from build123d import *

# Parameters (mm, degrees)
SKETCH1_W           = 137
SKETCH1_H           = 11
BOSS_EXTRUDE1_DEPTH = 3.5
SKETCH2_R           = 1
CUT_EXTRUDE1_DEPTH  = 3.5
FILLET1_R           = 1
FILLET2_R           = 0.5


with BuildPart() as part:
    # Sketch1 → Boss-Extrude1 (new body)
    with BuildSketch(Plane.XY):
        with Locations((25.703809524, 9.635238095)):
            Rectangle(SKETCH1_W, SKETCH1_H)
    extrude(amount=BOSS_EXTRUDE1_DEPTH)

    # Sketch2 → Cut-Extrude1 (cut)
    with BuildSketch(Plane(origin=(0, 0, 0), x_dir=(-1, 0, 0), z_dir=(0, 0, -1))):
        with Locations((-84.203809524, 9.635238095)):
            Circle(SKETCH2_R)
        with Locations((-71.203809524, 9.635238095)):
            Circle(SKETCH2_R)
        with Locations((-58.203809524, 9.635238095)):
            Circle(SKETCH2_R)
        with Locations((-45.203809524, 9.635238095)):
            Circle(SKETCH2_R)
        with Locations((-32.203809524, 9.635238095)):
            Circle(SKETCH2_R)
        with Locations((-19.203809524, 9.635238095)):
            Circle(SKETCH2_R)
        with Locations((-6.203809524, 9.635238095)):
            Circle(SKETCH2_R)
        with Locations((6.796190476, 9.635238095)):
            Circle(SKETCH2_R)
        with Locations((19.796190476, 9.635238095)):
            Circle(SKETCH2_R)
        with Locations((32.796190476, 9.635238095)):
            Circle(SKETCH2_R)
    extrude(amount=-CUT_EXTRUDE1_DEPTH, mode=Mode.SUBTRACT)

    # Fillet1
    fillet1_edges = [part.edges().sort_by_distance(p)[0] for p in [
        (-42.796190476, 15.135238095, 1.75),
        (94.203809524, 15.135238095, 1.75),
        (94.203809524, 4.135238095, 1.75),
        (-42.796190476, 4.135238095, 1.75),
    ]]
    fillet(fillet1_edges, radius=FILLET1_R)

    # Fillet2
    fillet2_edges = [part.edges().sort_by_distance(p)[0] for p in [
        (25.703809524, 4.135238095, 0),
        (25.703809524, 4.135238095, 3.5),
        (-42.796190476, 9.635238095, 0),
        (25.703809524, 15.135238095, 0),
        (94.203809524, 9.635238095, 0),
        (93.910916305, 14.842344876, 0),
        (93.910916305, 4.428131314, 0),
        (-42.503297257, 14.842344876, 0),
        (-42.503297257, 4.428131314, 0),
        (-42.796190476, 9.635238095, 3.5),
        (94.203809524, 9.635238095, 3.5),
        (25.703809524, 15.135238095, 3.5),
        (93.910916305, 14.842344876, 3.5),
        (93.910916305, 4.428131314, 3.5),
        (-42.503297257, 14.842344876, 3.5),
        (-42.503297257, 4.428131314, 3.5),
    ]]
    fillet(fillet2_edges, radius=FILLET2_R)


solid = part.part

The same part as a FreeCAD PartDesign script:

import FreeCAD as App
import Part
import Sketcher

V = App.Vector
Q = App.Units.Quantity


def edges_at(feature, points):
    """Names of the edges that pass closest to the given points."""
    edges = feature.Shape.Edges
    near = lambda p: min(range(len(edges)), key=lambda i: edges[i].distToShape(Part.Vertex(*p))[0])
    return sorted({f"Edge{near(p) + 1}" for p in points})

doc = App.newDocument("Part")
body = doc.addObject("PartDesign::Body", "Body")

sketch1 = body.newObject("Sketcher::SketchObject", "Sketch")
sketch1.AttachmentSupport = (doc.getObject("XY_Plane"), [""])
sketch1.MapMode = "FlatFace"
sketch1.addGeometry([
    Part.LineSegment(V(-43, 15, 0), V(-43, 4, 0)),
    Part.LineSegment(V(-43, 4, 0), V(94, 4, 0)),
    Part.LineSegment(V(94, 4, 0), V(94, 15, 0)),
    Part.LineSegment(V(94, 15, 0), V(-43, 15, 0)),
], False)
sketch1.addConstraint([
    Sketcher.Constraint("Coincident", 0, 2, 1, 1),
    Sketcher.Constraint("Coincident", 1, 2, 2, 1),
    Sketcher.Constraint("Coincident", 2, 2, 3, 1),
    Sketcher.Constraint("Coincident", 3, 2, 0, 1),
    Sketcher.Constraint("Vertical", 0),
    Sketcher.Constraint("Horizontal", 1),
    Sketcher.Constraint("Vertical", 2),
    Sketcher.Constraint("Horizontal", 3),
    Sketcher.Constraint("DistanceX", 1, 1, 1, 2, Q("137 mm")),
    Sketcher.Constraint("DistanceY", 0, 2, 0, 1, Q("11 mm")),
    Sketcher.Constraint("DistanceX", 0, 2, -1, 1, Q("42.79619 mm")),
    Sketcher.Constraint("DistanceY", -1, 1, 0, 2, Q("4.135238 mm")),
])
pad1 = body.newObject("PartDesign::Pad", "Pad")
pad1.Profile = sketch1
pad1.Length = 3.5

sketch2 = body.newObject("Sketcher::SketchObject", "Sketch001")
sketch2.AttachmentSupport = (doc.getObject("XY_Plane"), [""])
sketch2.MapMode = "FlatFace"
sketch2.addGeometry([
    Part.Circle(V(84.2, 9.6, 0), V(0, 0, 1), 1),
    Part.Circle(V(71.2, 9.6, 0), V(0, 0, 1), 1),
    Part.Circle(V(58.2, 9.6, 0), V(0, 0, 1), 1),
    Part.Circle(V(45.2, 9.6, 0), V(0, 0, 1), 1),
    Part.Circle(V(32.2, 9.6, 0), V(0, 0, 1), 1),
    Part.Circle(V(19.2, 9.6, 0), V(0, 0, 1), 1),
    Part.Circle(V(6.2, 9.6, 0), V(0, 0, 1), 1),
    Part.Circle(V(-6.8, 9.6, 0), V(0, 0, 1), 1),
    Part.Circle(V(-19.8, 9.6, 0), V(0, 0, 1), 1),
    Part.Circle(V(-32.8, 9.6, 0), V(0, 0, 1), 1),
], False)
sketch2.addConstraint([
    Sketcher.Constraint("Equal", 0, 1),
    Sketcher.Constraint("Equal", 1, 2),
    Sketcher.Constraint("Equal", 2, 3),
    Sketcher.Constraint("Equal", 3, 4),
    Sketcher.Constraint("Equal", 4, 5),
    Sketcher.Constraint("Equal", 5, 6),
    Sketcher.Constraint("Equal", 6, 7),
    Sketcher.Constraint("Equal", 7, 8),
    Sketcher.Constraint("Equal", 8, 9),
    Sketcher.Constraint("Horizontal", 0, 3, 1, 3),
    Sketcher.Constraint("Horizontal", 1, 3, 2, 3),
    Sketcher.Constraint("Horizontal", 2, 3, 3, 3),
    Sketcher.Constraint("Horizontal", 3, 3, 4, 3),
    Sketcher.Constraint("Horizontal", 4, 3, 5, 3),
    Sketcher.Constraint("Horizontal", 5, 3, 6, 3),
    Sketcher.Constraint("Horizontal", 6, 3, 7, 3),
    Sketcher.Constraint("Horizontal", 7, 3, 8, 3),
    Sketcher.Constraint("Horizontal", 8, 3, 9, 3),
    Sketcher.Constraint("Diameter", 0, Q("2 mm")),
    Sketcher.Constraint("DistanceX", 1, 3, 0, 3, Q("13 mm")),
    Sketcher.Constraint("DistanceX", 2, 3, 1, 3, Q("13 mm")),
    Sketcher.Constraint("DistanceX", 3, 3, 2, 3, Q("13 mm")),
    Sketcher.Constraint("DistanceX", 4, 3, 3, 3, Q("13 mm")),
    Sketcher.Constraint("DistanceX", 5, 3, 4, 3, Q("13 mm")),
    Sketcher.Constraint("DistanceX", 6, 3, 5, 3, Q("13 mm")),
    Sketcher.Constraint("DistanceX", 7, 3, 6, 3, Q("13 mm")),
    Sketcher.Constraint("DistanceX", 8, 3, 7, 3, Q("13 mm")),
    Sketcher.Constraint("DistanceX", 9, 3, 8, 3, Q("13 mm")),
    Sketcher.Constraint("DistanceX", -1, 1, 0, 3, Q("84.20381 mm")),
    Sketcher.Constraint("DistanceY", -1, 1, 0, 3, Q("9.635238 mm")),
])
pocket1 = body.newObject("PartDesign::Pocket", "Pocket")
pocket1.Profile = sketch2
pocket1.Length = 3.5
pocket1.Reversed = True
doc.recompute()

fillet = body.newObject("PartDesign::Fillet", "Fillet")
fillet.Base = (pocket1, edges_at(pocket1, [
    (-42.796, 15.135, 1.75),
    (94.204, 15.135, 1.75),
    (94.204, 4.135, 1.75),
    (-42.796, 4.135, 1.75),
]))
fillet.Radius = 1
doc.recompute()

fillet2 = body.newObject("PartDesign::Fillet", "Fillet001")
fillet2.Base = (fillet, edges_at(fillet, [
    (25.704, 4.135, 0),
    (25.704, 4.135, 3.5),
    (-42.796, 9.635, 0),
    (25.704, 15.135, 0),
    (94.204, 9.635, 0),
    (93.911, 14.842, 0),
    (93.911, 4.428, 0),
    (-42.503, 14.842, 0),
    (-42.503, 4.428, 0),
    (-42.796, 9.635, 3.5),
    (94.204, 9.635, 3.5),
    (25.704, 15.135, 3.5),
    (93.911, 14.842, 3.5),
    (93.911, 4.428, 3.5),
    (-42.503, 14.842, 3.5),
    (-42.503, 4.428, 3.5),
]))
fillet2.Radius = 0.5

doc.recompute()
